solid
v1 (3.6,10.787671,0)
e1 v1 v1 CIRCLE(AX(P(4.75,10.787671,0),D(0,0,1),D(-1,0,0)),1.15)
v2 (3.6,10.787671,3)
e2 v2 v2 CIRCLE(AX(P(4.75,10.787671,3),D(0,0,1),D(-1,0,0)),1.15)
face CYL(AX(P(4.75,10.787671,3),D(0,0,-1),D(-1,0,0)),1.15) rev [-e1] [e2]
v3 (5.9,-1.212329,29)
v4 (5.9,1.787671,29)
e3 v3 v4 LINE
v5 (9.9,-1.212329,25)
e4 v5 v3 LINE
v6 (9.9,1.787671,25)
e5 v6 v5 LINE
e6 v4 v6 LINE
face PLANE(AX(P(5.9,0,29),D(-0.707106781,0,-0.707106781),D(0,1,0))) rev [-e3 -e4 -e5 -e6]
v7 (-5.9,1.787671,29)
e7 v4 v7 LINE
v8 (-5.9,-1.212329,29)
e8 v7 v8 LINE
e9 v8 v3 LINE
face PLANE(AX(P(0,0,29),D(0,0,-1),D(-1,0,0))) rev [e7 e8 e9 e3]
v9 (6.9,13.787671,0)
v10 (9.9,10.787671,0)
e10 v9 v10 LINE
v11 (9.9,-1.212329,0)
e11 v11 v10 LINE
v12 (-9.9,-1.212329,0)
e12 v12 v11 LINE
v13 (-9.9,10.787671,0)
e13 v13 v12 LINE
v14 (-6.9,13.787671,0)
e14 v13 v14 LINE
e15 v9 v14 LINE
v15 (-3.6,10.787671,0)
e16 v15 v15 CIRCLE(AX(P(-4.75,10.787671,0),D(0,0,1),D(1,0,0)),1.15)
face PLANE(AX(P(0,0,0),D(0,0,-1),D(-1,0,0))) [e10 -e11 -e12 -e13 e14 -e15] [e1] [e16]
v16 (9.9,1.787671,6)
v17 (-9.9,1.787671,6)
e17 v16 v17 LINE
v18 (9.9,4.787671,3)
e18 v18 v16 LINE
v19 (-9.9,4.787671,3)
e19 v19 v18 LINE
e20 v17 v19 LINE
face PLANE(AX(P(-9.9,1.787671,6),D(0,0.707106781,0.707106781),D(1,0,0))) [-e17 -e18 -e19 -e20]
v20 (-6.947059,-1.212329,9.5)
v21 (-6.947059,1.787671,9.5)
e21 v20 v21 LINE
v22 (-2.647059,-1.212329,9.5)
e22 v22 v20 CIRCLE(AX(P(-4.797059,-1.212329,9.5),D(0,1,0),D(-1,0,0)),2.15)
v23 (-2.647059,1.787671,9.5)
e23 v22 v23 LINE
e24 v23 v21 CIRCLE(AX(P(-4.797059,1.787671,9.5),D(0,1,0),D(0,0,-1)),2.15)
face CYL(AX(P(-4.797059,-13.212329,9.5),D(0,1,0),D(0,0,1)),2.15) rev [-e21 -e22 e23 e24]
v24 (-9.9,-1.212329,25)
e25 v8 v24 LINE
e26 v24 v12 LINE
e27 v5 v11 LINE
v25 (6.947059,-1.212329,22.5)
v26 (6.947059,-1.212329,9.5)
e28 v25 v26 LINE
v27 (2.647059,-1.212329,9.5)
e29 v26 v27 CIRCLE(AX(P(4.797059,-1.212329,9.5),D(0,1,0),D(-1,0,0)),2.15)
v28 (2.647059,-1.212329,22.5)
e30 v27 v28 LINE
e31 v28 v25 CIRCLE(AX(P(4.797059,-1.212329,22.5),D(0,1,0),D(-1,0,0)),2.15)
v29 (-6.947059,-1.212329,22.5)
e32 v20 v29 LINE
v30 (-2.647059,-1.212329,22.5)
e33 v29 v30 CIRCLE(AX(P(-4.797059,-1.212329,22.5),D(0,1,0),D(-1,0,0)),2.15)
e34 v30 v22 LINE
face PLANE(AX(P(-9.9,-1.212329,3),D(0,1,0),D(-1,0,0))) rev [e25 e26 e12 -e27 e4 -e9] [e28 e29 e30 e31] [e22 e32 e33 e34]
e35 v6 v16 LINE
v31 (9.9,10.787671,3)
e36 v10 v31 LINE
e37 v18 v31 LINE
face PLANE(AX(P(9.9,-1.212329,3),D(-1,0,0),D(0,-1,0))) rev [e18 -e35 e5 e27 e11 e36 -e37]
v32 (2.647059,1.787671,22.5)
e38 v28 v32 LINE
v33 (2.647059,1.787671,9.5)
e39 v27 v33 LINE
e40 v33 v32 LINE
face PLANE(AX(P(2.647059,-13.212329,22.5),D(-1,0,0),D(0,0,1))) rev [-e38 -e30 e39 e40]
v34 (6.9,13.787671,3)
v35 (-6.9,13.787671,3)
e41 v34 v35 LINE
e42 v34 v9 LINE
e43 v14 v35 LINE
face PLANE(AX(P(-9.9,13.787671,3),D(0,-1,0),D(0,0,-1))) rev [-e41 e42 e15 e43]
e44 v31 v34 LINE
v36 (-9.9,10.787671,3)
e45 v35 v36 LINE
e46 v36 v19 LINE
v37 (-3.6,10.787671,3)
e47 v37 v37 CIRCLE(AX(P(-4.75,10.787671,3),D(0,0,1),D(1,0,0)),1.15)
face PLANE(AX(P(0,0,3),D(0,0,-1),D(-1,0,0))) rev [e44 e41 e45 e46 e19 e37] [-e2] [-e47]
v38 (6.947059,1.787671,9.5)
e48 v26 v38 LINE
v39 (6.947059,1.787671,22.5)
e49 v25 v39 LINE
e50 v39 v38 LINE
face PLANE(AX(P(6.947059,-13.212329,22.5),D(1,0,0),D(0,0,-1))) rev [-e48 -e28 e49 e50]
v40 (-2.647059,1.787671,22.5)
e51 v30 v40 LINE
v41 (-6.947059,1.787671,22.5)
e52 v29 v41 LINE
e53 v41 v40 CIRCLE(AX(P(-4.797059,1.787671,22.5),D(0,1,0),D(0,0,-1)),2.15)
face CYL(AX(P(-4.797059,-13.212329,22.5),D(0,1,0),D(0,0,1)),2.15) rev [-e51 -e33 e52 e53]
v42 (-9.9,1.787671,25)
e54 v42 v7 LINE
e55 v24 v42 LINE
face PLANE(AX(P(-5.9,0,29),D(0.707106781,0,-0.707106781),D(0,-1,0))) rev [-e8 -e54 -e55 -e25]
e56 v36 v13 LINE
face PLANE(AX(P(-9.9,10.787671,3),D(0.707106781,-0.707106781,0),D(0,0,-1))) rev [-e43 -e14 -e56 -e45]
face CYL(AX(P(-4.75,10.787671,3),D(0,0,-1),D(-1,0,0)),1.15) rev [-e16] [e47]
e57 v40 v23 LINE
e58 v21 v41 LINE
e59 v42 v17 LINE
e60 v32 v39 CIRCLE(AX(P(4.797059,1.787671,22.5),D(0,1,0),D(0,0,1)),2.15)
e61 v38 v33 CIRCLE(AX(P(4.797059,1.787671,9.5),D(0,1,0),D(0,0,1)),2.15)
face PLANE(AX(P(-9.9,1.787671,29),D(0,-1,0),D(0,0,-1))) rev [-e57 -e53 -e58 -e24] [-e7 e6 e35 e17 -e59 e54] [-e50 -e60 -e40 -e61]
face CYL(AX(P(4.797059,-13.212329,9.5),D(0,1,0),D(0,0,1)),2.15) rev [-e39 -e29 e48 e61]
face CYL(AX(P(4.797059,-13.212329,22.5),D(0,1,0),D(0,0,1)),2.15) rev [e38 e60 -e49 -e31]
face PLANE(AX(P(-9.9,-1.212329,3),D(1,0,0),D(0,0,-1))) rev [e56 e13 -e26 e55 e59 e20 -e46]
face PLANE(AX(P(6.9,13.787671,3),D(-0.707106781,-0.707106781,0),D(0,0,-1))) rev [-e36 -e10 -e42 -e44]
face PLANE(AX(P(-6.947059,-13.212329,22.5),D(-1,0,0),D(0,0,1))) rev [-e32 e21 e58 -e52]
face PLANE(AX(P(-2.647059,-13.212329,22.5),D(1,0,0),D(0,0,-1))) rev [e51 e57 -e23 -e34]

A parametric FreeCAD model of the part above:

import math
import FreeCAD as App
import Part
import Sketcher
from FreeCAD import Vector
Q = App.Units.Quantity


def edges_at(feature, points):
    """Names of the edges that pass closest to the given points."""
    edges = feature.Shape.Edges
    near = lambda p: min(range(len(edges)), key=lambda i: edges[i].distToShape(Part.Vertex(*p))[0])
    return sorted({f"Edge{near(p) + 1}" for p in points})

doc = App.newDocument("Part")
body = doc.addObject("PartDesign::Body", "Body")

sketch1 = body.newObject("Sketcher::SketchObject", "Sketch")
sketch1.AttachmentSupport = (doc.getObject("XY_Plane"), [""])
sketch1.MapMode = "FlatFace"
sketch1.addGeometry([
    Part.LineSegment(Vector(-9.9, 13.8, 0), Vector(-9.9, -1.2, 0)),
    Part.LineSegment(Vector(-9.9, -1.2, 0), Vector(9.9, -1.2, 0)),
    Part.LineSegment(Vector(9.9, -1.2, 0), Vector(9.9, 13.8, 0)),
    Part.LineSegment(Vector(9.9, 13.8, 0), Vector(-9.9, 13.8, 0)),
    Part.Circle(Vector(-4.8, 10.8, 0), Vector(0, 0, 1), 1.1),
    Part.Circle(Vector(4.8, 10.8, 0), Vector(0, 0, 1), 1.1),
], False)
sketch1.addConstraint([
    Sketcher.Constraint("Coincident", 0, 2, 1, 1),
    Sketcher.Constraint("Coincident", 1, 2, 2, 1),
    Sketcher.Constraint("Coincident", 2, 2, 3, 1),
    Sketcher.Constraint("Coincident", 3, 2, 0, 1),
    Sketcher.Constraint("Vertical", 0),
    Sketcher.Constraint("Horizontal", 1),
    Sketcher.Constraint("Vertical", 2),
    Sketcher.Constraint("Horizontal", 3),
    Sketcher.Constraint("Equal", 4, 5),
    Sketcher.Constraint("Symmetric", 4, 3, 5, 3, -2),
    Sketcher.Constraint("Diameter", 4, Q("2.3 mm")),
    Sketcher.Constraint("DistanceY", 0, 2, 0, 1, Q("15 mm")),
    Sketcher.Constraint("DistanceX", 1, 1, 1, 2, Q("19.8 mm")),
    Sketcher.Constraint("DistanceY", 0, 2, 4, 3, Q("12 mm")),
    Sketcher.Constraint("DistanceX", 0, 2, -1, 1, Q("9.9 mm")),
    Sketcher.Constraint("DistanceX", 4, 3, 5, 3, Q("9.5 mm")),
    Sketcher.Constraint("DistanceY", -1, 1, 4, 3, Q("10.787671 mm")),
])
pad1 = body.newObject("PartDesign::Pad", "Pad")
pad1.Profile = sketch1
pad1.Length = 3

sketch2 = body.newObject("Sketcher::SketchObject", "Sketch001")
sketch2.AttachmentSupport = (doc.getObject("XY_Plane"), [""])
sketch2.MapMode = "FlatFace"
sketch2.AttachmentOffset = App.Placement(Vector(0, 0, 3), App.Rotation())
sketch2.addGeometry([
    Part.LineSegment(Vector(-9.9, 1.8, 0), Vector(-9.9, -1.2, 0)),
    Part.LineSegment(Vector(-9.9, -1.2, 0), Vector(9.9, -1.2, 0)),
    Part.LineSegment(Vector(9.9, -1.2, 0), Vector(9.9, 1.8, 0)),
    Part.LineSegment(Vector(9.9, 1.8, 0), Vector(-9.9, 1.8, 0)),
], False)
sketch2.addConstraint([
    Sketcher.Constraint("Coincident", 0, 2, 1, 1),
    Sketcher.Constraint("Coincident", 1, 2, 2, 1),
    Sketcher.Constraint("Coincident", 2, 2, 3, 1),
    Sketcher.Constraint("Coincident", 3, 2, 0, 1),
    Sketcher.Constraint("Vertical", 0),
    Sketcher.Constraint("Horizontal", 1),
    Sketcher.Constraint("Vertical", 2),
    Sketcher.Constraint("Horizontal", 3),
    Sketcher.Constraint("DistanceY", 0, 2, 0, 1, Q("3 mm")),
    Sketcher.Constraint("DistanceX", 1, 1, 1, 2, Q("19.8 mm")),
    Sketcher.Constraint("DistanceX", 0, 2, -1, 1, Q("9.9 mm")),
    Sketcher.Constraint("DistanceY", 0, 2, -1, 1, Q("1.212329 mm")),
])
pad2 = body.newObject("PartDesign::Pad", "Pad001")
pad2.Profile = sketch2
pad2.Length = 26
doc.recompute()

chamfer = body.newObject("PartDesign::Chamfer", "Chamfer")
chamfer.Base = (pad2, edges_at(pad2, [(0, 1.788, 3), (-9.9, 13.788, 1.5), (9.9, 13.788, 1.5)]))
chamfer.Size = 3

sketch3 = body.newObject("Sketcher::SketchObject", "Sketch002")
sketch3.AttachmentSupport = (doc.getObject("XZ_Plane"), [""])
sketch3.MapMode = "FlatFace"
sketch3.AttachmentOffset = App.Placement(Vector(0, 0, -1.787671), App.Rotation())
sketch3.addGeometry([
    Part.LineSegment(Vector(2.6, 9.5, 0), Vector(2.6, 22.5, 0)),
    Part.ArcOfCircle(Part.Circle(Vector(4.8, 22.5, 0), Vector(0, 0, 1), 2.1), math.radians(0), math.radians(180)),
    Part.LineSegment(Vector(6.9, 22.5, 0), Vector(6.9, 9.5, 0)),
    Part.ArcOfCircle(Part.Circle(Vector(4.8, 9.5, 0), Vector(0, 0, 1), 2.1), math.radians(180), math.radians(360)),
    Part.LineSegment(Vector(-2.6, 22.5, 0), Vector(-2.6, 9.5, 0)),
    Part.ArcOfCircle(Part.Circle(Vector(-4.8, 9.5, 0), Vector(0, 0, 1), 2.1), math.radians(180), math.radians(360)),
    Part.LineSegment(Vector(-6.9, 9.5, 0), Vector(-6.9, 22.5, 0)),
    Part.ArcOfCircle(Part.Circle(Vector(-4.8, 22.5, 0), Vector(0, 0, 1), 2.1), math.radians(0), math.radians(180)),
], False)
sketch3.addConstraint([
    Sketcher.Constraint("Tangent", 0, 2, 1, 2),
    Sketcher.Constraint("Tangent", 1, 1, 2, 1),
    Sketcher.Constraint("Tangent", 2, 2, 3, 2),
    Sketcher.Constraint("Tangent", 3, 1, 0, 1),
    Sketcher.Constraint("Tangent", 4, 2, 5, 2),
    Sketcher.Constraint("Tangent", 5, 1, 6, 1),
    Sketcher.Constraint("Tangent", 6, 2, 7, 2),
    Sketcher.Constraint("Tangent", 7, 1, 4, 1),
    Sketcher.Constraint("Vertical", 0),
    Sketcher.Constraint("Vertical", 2),
    Sketcher.Constraint("Vertical", 4),
    Sketcher.Constraint("Vertical", 6),
    Sketcher.Constraint("Equal", 3, 5),
    Sketcher.Constraint("Symmetric", 3, 3, 5, 3, -2),
    Sketcher.Constraint("Horizontal", 1, 3, 7, 3),
    Sketcher.Constraint("DistanceY", 0, 1, 0, 2, Q("13 mm")),
    Sketcher.Constraint("Radius", 1, Q("2.15 mm")),
    Sketcher.Constraint("DistanceY", -1, 1, 1, 3, Q("22.5 mm")),
    Sketcher.Constraint("DistanceX", -1, 1, 1, 3, Q("4.797059 mm")),
])
pocket1 = body.newObject("PartDesign::Pocket", "Pocket")
pocket1.Profile = sketch3
pocket1.Length = 15
pocket1.Reversed = True
doc.recompute()

chamfer2 = body.newObject("PartDesign::Chamfer", "Chamfer001")
chamfer2.Base = (pocket1, edges_at(pocket1, [(-9.9, 0.288, 29), (9.9, 0.288, 29)]))
chamfer2.Size = 4

doc.recompute()
